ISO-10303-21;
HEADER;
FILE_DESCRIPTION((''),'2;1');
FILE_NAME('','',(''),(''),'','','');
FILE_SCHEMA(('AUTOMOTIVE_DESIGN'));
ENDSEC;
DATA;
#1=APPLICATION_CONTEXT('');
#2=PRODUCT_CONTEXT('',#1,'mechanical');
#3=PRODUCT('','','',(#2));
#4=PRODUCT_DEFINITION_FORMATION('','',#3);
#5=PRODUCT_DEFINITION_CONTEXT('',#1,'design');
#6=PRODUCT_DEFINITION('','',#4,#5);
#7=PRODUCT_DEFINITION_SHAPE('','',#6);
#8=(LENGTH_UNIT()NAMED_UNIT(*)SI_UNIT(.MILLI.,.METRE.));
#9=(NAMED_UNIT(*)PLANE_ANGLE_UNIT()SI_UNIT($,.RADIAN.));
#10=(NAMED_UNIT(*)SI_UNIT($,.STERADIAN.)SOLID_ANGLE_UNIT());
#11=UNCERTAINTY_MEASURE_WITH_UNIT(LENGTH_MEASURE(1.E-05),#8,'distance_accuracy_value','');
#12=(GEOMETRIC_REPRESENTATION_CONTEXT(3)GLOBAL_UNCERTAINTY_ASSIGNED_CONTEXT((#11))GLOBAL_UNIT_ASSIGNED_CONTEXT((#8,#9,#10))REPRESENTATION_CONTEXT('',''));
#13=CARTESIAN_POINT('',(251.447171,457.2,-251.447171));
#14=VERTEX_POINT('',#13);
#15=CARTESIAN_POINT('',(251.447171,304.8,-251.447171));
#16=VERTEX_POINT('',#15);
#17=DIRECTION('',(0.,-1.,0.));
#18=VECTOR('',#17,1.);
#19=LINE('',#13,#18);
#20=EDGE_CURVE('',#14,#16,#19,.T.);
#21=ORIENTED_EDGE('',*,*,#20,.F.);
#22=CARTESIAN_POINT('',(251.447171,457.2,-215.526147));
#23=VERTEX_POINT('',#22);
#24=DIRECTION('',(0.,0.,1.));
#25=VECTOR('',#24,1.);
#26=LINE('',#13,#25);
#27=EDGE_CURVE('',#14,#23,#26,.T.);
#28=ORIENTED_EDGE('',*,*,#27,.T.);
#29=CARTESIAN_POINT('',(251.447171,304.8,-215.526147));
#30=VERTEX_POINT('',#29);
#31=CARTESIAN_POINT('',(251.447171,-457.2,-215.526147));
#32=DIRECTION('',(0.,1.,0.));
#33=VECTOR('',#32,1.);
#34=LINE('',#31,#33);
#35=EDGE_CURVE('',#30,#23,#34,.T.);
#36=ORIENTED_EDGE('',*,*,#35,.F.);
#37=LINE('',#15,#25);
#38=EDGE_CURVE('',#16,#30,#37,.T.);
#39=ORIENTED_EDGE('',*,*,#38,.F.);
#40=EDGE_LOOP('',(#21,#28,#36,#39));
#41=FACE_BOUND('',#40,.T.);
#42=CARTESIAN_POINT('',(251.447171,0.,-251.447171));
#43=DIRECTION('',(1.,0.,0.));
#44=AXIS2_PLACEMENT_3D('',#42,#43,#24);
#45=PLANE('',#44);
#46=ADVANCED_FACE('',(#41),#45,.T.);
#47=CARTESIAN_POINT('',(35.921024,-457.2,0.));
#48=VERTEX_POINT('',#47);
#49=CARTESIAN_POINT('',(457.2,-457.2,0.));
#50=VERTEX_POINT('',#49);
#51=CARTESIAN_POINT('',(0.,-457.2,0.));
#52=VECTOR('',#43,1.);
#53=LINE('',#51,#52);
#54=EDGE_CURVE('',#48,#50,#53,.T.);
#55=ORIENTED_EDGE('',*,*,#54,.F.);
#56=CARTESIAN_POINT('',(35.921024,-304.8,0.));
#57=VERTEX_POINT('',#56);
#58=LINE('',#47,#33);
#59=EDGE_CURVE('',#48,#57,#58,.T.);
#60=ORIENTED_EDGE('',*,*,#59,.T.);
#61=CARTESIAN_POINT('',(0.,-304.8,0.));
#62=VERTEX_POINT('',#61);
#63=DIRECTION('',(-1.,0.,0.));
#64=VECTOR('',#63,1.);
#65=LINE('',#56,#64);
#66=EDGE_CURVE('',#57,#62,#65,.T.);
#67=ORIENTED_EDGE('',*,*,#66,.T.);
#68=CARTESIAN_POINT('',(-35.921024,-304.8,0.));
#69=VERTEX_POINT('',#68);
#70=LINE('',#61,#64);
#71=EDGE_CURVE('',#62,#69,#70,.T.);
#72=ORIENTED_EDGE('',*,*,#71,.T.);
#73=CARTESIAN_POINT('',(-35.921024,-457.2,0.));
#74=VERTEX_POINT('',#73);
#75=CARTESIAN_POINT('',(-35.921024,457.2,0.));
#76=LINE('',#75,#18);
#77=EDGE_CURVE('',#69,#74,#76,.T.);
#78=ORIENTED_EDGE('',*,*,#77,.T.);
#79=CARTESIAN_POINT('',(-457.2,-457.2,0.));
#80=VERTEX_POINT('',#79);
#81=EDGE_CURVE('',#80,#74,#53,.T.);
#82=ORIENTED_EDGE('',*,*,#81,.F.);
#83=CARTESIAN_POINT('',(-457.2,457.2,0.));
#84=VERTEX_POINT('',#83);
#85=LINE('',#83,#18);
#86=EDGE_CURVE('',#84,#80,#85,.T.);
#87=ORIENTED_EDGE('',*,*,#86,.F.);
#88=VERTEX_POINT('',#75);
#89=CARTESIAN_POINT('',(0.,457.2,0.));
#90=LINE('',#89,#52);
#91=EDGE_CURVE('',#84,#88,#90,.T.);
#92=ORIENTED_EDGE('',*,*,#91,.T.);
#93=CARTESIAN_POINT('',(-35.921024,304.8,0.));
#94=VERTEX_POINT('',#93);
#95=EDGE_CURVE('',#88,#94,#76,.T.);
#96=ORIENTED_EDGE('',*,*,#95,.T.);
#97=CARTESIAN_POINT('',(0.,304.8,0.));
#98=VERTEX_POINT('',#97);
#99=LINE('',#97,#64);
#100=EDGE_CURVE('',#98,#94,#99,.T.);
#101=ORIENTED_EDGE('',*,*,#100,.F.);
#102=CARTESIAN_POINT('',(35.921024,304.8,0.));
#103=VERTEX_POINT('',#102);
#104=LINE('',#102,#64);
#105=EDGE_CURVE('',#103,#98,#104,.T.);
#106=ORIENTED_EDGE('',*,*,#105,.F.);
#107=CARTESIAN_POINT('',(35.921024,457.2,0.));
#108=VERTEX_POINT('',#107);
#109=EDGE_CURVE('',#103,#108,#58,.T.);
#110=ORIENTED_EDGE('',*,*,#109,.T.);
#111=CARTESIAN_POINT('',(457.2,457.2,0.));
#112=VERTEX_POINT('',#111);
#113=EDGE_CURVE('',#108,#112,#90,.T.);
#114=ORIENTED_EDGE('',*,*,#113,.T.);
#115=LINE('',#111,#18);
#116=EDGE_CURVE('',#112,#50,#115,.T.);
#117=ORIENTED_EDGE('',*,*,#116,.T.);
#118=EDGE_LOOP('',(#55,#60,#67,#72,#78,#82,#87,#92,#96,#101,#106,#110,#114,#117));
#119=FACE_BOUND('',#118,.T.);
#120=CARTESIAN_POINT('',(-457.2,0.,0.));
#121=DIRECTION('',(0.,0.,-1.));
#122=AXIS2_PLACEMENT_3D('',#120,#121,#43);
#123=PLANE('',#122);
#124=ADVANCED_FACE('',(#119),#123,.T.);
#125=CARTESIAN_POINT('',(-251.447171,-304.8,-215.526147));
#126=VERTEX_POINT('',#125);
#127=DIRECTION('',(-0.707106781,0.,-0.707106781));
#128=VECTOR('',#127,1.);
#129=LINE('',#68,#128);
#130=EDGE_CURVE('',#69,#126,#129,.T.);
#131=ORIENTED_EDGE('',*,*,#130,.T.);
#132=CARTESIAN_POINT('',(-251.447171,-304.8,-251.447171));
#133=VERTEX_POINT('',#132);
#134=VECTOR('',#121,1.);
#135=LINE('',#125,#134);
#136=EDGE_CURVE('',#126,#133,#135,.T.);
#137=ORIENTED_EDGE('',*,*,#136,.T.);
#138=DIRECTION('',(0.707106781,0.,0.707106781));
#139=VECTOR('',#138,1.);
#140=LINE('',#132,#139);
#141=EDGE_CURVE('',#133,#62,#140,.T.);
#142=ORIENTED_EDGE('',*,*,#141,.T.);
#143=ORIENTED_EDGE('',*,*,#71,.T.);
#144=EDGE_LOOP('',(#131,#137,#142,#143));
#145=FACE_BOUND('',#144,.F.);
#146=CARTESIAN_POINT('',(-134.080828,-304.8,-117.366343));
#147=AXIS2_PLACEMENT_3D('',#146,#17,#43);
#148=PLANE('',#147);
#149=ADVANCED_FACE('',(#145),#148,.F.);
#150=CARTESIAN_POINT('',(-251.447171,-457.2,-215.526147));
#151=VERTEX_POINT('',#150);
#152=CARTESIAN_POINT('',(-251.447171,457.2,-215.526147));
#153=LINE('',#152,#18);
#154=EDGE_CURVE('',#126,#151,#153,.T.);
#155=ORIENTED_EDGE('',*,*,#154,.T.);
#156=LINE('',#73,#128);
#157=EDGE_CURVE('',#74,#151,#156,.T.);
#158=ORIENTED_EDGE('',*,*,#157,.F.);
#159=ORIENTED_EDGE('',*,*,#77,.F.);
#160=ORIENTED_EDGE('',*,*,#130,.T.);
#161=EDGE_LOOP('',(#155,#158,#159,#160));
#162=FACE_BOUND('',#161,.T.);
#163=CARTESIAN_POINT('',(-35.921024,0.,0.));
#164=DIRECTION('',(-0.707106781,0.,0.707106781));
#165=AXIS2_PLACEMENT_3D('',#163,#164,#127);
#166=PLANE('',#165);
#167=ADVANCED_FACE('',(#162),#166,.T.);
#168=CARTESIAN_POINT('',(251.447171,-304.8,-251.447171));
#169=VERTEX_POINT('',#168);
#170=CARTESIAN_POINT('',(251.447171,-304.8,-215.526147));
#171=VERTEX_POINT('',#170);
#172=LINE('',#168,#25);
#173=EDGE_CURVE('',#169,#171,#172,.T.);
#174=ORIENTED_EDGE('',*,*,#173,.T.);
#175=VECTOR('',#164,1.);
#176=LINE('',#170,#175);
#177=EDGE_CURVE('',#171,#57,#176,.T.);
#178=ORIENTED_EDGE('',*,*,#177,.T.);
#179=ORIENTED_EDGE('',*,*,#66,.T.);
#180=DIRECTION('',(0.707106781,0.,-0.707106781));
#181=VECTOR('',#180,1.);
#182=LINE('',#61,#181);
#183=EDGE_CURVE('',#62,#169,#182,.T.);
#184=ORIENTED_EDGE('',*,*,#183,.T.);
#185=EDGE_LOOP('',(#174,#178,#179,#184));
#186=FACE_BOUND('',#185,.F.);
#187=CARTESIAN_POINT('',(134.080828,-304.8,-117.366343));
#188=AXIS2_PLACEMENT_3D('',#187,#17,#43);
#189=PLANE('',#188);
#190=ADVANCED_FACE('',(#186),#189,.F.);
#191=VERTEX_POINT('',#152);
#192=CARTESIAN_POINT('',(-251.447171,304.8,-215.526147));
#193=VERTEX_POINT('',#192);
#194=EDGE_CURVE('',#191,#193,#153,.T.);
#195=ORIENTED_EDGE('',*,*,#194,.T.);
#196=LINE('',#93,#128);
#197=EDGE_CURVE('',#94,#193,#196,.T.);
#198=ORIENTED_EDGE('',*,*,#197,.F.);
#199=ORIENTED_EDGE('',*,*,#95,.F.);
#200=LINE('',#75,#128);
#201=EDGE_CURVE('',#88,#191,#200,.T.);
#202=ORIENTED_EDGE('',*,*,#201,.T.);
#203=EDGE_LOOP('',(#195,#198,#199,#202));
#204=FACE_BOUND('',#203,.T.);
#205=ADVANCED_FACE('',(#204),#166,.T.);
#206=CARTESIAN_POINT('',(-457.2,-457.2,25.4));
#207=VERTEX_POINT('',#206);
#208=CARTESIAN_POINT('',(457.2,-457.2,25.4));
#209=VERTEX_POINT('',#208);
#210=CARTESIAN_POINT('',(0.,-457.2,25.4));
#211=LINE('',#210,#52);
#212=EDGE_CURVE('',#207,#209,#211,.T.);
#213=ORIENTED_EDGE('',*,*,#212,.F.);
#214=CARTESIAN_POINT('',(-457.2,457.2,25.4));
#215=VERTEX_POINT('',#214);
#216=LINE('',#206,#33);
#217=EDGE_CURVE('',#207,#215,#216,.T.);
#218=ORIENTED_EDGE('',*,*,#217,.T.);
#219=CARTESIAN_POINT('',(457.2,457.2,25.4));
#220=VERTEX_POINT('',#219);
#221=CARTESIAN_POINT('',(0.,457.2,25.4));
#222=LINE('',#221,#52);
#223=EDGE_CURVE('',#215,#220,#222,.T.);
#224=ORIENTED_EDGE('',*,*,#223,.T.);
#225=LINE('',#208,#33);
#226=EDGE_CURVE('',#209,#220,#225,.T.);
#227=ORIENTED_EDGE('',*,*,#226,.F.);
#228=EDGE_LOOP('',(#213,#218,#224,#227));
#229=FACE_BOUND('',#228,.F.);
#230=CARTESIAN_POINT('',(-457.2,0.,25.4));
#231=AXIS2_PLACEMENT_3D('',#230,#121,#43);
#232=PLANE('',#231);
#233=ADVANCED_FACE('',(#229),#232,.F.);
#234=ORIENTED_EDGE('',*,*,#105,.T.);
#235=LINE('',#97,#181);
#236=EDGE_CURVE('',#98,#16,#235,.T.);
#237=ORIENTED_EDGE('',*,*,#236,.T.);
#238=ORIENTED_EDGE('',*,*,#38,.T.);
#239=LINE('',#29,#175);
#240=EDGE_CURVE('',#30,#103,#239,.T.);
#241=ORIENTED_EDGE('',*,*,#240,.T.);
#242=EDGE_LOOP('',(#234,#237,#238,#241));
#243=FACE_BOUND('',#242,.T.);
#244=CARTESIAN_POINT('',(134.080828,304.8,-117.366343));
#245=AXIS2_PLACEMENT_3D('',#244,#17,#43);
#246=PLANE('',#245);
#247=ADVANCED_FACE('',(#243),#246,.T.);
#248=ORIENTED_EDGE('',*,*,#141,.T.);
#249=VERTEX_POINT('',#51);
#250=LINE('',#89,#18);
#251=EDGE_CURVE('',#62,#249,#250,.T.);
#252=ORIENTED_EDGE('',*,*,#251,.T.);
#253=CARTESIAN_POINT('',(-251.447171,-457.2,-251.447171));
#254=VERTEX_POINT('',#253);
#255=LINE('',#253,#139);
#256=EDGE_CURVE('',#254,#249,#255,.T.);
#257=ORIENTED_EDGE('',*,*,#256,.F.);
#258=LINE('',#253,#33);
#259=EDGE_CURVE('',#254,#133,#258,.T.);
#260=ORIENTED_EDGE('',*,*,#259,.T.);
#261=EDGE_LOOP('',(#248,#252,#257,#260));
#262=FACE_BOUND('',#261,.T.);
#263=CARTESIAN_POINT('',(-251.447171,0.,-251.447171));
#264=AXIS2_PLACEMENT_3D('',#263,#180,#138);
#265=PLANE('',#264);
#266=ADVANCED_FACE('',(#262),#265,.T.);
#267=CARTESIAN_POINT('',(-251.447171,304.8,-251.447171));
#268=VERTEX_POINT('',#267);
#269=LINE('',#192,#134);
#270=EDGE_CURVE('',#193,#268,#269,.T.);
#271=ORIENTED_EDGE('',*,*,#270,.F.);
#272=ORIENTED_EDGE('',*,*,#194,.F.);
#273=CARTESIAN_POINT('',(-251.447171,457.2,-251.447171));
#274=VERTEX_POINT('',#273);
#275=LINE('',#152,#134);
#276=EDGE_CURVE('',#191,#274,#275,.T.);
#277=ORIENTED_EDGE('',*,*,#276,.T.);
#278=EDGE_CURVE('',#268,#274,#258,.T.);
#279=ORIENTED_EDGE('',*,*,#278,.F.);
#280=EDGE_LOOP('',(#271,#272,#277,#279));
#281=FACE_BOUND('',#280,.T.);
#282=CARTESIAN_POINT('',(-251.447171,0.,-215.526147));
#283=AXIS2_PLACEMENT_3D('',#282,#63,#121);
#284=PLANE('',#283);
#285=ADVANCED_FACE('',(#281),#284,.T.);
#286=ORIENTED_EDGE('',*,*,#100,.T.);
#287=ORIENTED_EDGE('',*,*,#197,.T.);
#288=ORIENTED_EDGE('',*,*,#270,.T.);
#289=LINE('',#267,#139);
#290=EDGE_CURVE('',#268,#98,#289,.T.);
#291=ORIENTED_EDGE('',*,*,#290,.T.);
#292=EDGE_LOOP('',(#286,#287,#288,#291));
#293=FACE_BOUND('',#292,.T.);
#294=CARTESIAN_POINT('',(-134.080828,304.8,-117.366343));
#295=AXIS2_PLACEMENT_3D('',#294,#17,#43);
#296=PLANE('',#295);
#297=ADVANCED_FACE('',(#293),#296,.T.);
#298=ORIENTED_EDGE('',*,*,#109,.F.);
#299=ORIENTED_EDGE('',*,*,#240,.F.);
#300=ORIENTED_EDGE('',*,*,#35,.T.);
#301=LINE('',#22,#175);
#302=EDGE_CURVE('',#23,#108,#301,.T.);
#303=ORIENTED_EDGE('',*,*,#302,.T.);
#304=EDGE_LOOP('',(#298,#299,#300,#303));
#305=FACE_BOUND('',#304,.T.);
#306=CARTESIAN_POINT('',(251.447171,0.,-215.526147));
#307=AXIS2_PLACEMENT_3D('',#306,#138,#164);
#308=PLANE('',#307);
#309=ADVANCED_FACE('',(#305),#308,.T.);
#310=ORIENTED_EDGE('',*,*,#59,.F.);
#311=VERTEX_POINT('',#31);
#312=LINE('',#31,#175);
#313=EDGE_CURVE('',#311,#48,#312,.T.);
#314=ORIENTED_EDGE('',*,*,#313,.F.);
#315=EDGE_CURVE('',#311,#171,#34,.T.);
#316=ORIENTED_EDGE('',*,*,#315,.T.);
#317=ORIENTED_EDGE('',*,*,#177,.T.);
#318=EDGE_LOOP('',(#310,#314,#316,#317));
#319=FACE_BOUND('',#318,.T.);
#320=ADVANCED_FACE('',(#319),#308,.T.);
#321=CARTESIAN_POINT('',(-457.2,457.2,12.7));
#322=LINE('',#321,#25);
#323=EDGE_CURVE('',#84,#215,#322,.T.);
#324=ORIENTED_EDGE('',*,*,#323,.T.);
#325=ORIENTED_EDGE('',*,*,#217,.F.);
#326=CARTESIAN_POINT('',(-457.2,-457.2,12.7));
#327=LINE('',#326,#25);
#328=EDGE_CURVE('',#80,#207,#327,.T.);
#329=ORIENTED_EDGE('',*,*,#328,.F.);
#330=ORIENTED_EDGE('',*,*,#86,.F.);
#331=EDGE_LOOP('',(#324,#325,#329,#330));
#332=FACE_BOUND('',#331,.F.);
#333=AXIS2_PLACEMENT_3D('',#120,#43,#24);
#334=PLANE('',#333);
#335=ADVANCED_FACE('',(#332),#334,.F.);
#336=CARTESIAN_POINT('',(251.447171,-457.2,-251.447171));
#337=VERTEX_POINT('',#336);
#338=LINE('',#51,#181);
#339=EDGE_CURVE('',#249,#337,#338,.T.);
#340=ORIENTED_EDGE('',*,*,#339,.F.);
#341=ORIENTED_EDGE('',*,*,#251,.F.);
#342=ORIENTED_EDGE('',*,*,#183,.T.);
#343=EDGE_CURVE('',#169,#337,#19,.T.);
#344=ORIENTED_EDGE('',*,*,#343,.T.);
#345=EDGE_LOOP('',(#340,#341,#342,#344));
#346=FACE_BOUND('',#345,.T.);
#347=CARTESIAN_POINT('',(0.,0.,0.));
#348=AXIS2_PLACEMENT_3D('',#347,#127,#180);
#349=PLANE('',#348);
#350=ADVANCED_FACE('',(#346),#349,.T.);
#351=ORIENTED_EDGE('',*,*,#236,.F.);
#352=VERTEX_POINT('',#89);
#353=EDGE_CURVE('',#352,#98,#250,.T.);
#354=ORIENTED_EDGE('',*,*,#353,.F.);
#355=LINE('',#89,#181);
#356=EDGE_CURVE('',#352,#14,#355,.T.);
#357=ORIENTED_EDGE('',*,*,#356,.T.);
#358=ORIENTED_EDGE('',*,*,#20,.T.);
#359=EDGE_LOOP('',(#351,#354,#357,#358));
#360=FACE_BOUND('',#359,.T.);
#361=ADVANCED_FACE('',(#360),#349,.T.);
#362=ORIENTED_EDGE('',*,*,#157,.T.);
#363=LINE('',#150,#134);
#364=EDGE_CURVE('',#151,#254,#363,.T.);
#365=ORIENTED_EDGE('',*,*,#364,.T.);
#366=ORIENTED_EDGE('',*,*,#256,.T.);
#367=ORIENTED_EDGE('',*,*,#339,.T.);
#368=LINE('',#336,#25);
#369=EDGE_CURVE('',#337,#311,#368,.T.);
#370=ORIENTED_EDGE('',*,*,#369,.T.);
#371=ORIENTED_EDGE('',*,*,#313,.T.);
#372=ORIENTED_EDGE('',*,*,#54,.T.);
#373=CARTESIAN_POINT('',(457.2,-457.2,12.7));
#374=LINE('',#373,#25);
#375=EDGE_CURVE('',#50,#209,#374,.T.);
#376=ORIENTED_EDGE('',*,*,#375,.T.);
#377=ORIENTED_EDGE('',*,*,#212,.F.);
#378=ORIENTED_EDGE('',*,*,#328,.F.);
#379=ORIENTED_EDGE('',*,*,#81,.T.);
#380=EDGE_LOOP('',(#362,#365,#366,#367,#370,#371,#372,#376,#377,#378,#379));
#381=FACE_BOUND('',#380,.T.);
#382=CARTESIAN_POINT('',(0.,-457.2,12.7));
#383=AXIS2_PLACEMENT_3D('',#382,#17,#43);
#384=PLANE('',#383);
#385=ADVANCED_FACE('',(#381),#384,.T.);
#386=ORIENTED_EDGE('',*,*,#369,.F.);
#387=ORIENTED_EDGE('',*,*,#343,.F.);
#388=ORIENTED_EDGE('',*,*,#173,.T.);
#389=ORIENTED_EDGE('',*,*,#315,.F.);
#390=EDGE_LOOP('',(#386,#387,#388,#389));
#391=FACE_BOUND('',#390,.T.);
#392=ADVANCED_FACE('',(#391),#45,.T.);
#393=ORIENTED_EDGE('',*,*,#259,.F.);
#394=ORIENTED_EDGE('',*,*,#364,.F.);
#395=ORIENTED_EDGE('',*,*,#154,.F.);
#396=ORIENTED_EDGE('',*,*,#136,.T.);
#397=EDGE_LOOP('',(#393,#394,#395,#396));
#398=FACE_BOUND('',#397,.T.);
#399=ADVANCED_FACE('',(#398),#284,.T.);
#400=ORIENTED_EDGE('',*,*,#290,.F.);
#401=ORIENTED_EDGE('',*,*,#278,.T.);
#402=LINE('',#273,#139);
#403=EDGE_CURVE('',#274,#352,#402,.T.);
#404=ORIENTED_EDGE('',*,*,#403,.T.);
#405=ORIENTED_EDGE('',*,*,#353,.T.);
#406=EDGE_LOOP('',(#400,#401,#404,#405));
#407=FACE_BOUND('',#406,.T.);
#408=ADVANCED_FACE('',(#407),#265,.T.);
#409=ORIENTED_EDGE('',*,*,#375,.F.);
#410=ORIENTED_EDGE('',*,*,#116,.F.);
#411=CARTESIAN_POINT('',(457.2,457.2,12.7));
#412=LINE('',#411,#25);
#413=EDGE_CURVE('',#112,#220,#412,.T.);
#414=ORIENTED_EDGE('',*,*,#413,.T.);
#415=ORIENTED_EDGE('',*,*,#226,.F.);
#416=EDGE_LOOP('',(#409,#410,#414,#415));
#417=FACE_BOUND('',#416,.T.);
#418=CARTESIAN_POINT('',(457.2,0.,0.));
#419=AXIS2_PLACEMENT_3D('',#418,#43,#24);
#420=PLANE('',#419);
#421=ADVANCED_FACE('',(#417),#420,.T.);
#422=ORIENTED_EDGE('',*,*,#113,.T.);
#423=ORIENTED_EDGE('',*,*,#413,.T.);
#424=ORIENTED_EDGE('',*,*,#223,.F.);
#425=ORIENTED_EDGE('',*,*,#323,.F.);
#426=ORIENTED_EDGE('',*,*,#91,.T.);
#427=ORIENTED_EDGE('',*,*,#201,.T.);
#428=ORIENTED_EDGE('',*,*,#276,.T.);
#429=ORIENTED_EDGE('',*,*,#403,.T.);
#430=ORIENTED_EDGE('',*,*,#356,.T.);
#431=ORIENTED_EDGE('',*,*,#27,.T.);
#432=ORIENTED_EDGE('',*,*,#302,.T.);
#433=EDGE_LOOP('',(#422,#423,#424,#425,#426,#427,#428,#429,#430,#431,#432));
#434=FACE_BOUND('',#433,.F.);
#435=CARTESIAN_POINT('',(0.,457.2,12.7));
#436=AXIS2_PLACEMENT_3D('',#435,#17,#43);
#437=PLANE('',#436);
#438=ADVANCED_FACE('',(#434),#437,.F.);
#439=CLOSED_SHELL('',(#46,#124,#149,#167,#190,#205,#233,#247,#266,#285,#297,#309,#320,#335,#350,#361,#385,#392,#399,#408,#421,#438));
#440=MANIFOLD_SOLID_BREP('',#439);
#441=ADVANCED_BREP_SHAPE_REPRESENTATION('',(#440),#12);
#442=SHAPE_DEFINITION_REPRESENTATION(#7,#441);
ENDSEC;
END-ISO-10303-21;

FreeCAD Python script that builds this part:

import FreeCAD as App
import Part
import Sketcher

V = App.Vector
Q = App.Units.Quantity


def add_polygon(sketch, points):
    """Adds a closed chain of lines whose ends are joined by coincident constraints."""
    first, n = sketch.GeometryCount, len(points)
    for a, b in zip(points, points[1:] + points[:1]):
        sketch.addGeometry(Part.LineSegment(App.Vector(*a, 0), App.Vector(*b, 0)), False)
    for i in range(n):
        sketch.addConstraint(Sketcher.Constraint("Coincident", first + i, 2, first + (i + 1) % n, 1))

doc = App.newDocument("Part")
body = doc.addObject("PartDesign::Body", "Body")

sketch1 = body.newObject("Sketcher::SketchObject", "Sketch")
sketch1.AttachmentSupport = (doc.getObject("XZ_Plane"), [""])
sketch1.MapMode = "FlatFace"
add_polygon(sketch1, [(-457, 25), (-457, 0), (457, 0), (457, 25)])
sketch1.addConstraint([
    Sketcher.Constraint("Vertical", 0),
    Sketcher.Constraint("Horizontal", 1),
    Sketcher.Constraint("Vertical", 2),
    Sketcher.Constraint("Horizontal", 3),
    Sketcher.Constraint("Symmetric", 0, 2, 1, 2, -1, 1),
    Sketcher.Constraint("DistanceX", 1, 1, 1, 2, Q("36 in")),
    Sketcher.Constraint("DistanceY", 0, 2, 0, 1, Q("1 in")),
])
pad1 = body.newObject("PartDesign::Pad", "Pad")
pad1.Profile = sketch1
pad1.Length = Q("36 in")
pad1.Midplane = True

sketch2 = body.newObject("Sketcher::SketchObject", "Sketch001")
sketch2.AttachmentSupport = (doc.getObject("XZ_Plane"), [""])
sketch2.MapMode = "FlatFace"
add_polygon(sketch2, [(0, 0), (-36, 0), (-251, -216), (-251, -251)])
add_polygon(sketch2, [(36, 0), (0, 0), (251, -251), (251, -216)])
sketch2.addConstraint([
    Sketcher.Constraint("Horizontal", 0),
    Sketcher.Constraint("Vertical", 2),
    Sketcher.Constraint("Horizontal", 4),
    Sketcher.Constraint("Vertical", 6),
    Sketcher.Constraint("Coincident", 3, 2, -1, 1),
    Sketcher.Constraint("Coincident", 4, 2, -1, 1),
    Sketcher.Constraint("Symmetric", 2, 2, 5, 2, -2),
    Sketcher.Constraint("Parallel", 1, 3),
    Sketcher.Constraint("Perpendicular", 3, 5),
    Sketcher.Constraint("Parallel", 5, 7),
    Sketcher.Constraint("Horizontal", 1, 2, 6, 2),
    Sketcher.Constraint("Distance", 1, Q("12 in")),
    Sketcher.Constraint("Distance", 3, Q("14 in")),
])
pad2 = body.newObject("PartDesign::Pad", "Pad001")
pad2.Profile = sketch2
pad2.Length = Q("36 in")
pad2.Midplane = True

sketch3 = body.newObject("Sketcher::SketchObject", "Sketch002")
sketch3.AttachmentSupport = (doc.getObject("XZ_Plane"), [""])
sketch3.MapMode = "FlatFace"
add_polygon(sketch3, [(0, 0), (-36, 0), (-251, -216), (-251, -251)])
add_polygon(sketch3, [(36, 0), (0, 0), (251, -251), (251, -216)])
sketch3.addConstraint([
    Sketcher.Constraint("Horizontal", 0),
    Sketcher.Constraint("Vertical", 2),
    Sketcher.Constraint("Horizontal", 4),
    Sketcher.Constraint("Vertical", 6),
    Sketcher.Constraint("Coincident", 3, 2, -1, 1),
    Sketcher.Constraint("Coincident", 4, 2, -1, 1),
    Sketcher.Constraint("Symmetric", 2, 2, 5, 2, -2),
    Sketcher.Constraint("Parallel", 1, 3),
    Sketcher.Constraint("Perpendicular", 3, 5),
    Sketcher.Constraint("Parallel", 5, 7),
    Sketcher.Constraint("Horizontal", 1, 2, 6, 2),
    Sketcher.Constraint("Distance", 1, Q("12 in")),
    Sketcher.Constraint("Distance", 3, Q("14 in")),
])
pocket1 = body.newObject("PartDesign::Pocket", "Pocket")
pocket1.Profile = sketch3
pocket1.Length = Q("24 in")
pocket1.Midplane = True

doc.recompute()
